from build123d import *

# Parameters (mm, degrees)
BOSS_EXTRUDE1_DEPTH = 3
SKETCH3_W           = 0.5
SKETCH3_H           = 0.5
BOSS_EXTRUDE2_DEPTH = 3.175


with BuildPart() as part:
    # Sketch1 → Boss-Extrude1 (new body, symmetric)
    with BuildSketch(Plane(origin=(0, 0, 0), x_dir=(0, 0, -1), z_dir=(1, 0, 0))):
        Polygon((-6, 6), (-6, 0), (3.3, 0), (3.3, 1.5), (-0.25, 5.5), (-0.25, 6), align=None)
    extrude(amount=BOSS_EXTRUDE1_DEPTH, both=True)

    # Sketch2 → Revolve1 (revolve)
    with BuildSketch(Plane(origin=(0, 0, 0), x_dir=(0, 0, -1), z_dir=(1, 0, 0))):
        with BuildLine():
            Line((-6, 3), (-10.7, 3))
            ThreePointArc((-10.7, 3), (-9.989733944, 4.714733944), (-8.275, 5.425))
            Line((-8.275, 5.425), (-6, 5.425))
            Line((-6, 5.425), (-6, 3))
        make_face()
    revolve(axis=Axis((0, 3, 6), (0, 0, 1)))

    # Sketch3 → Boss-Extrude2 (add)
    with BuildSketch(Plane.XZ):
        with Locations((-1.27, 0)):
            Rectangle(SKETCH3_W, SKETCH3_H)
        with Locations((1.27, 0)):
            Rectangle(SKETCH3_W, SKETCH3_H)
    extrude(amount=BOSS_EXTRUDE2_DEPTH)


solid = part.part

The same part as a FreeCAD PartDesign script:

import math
import FreeCAD as App
import Part
import Sketcher
from FreeCAD import Vector
Q = App.Units.Quantity


def add_polygon(sketch, points):
    """Adds a closed chain of lines whose ends are joined by coincident constraints."""
    first, n = sketch.GeometryCount, len(points)
    for a, b in zip(points, points[1:] + points[:1]):
        sketch.addGeometry(Part.LineSegment(App.Vector(*a, 0), App.Vector(*b, 0)), False)
    for i in range(n):
        sketch.addConstraint(Sketcher.Constraint("Coincident", first + i, 2, first + (i + 1) % n, 1))

doc = App.newDocument("Part")
body = doc.addObject("PartDesign::Body", "Body")

sketch1 = body.newObject("Sketcher::SketchObject", "Sketch")
sketch1.AttachmentSupport = (doc.getObject("YZ_Plane"), [""])
sketch1.MapMode = "FlatFace"
add_polygon(sketch1, [(6, 6), (0, 6), (0, -3.3), (1.5, -3.3), (5.5, 0.2), (6, 0.2)])
sketch1.addConstraint([
    Sketcher.Constraint("Horizontal", 0),
    Sketcher.Constraint("Vertical", 1),
    Sketcher.Constraint("Horizontal", 2),
    Sketcher.Constraint("Horizontal", 4),
    Sketcher.Constraint("Vertical", 5),
    Sketcher.Constraint("PointOnObject", 0, 2, -2),
    Sketcher.Constraint("DistanceX", 0, 2, 0, 1, Q("6 mm")),
    Sketcher.Constraint("DistanceX", 2, 1, 2, 2, Q("1.5 mm")),
    Sketcher.Constraint("DistanceX", 4, 1, 4, 2, Q("0.5 mm")),
    Sketcher.Constraint("DistanceY", 1, 2, 1, 1, Q("9.3 mm")),
    Sketcher.Constraint("DistanceY", -1, 1, 0, 2, Q("6 mm")),
    Sketcher.Constraint("DistanceY", 5, 1, 5, 2, Q("5.75 mm")),
])
pad1 = body.newObject("PartDesign::Pad", "Pad")
pad1.Profile = sketch1
pad1.Length = 6
pad1.Midplane = True

sketch2 = body.newObject("Sketcher::SketchObject", "Sketch001")
sketch2.AttachmentSupport = (doc.getObject("YZ_Plane"), [""])
sketch2.MapMode = "FlatFace"
sketch2.addGeometry([
    Part.LineSegment(Vector(3, 10.7, 0), Vector(3, 6, 0)),
    Part.LineSegment(Vector(3, 6, 0), Vector(5.4, 6, 0)),
    Part.LineSegment(Vector(5.4, 6, 0), Vector(5.4, 8.3, 0)),
    Part.ArcOfCircle(Part.Circle(Vector(3, 8.3, 0), Vector(0, 0, 1), 2.4), math.radians(0), math.radians(90)),
], False)
sketch2.addGeometry(Part.LineSegment(Vector(3, 6, 0), Vector(3, 10.7, 0)), True)
sketch2.addConstraint([
    Sketcher.Constraint("Coincident", 0, 2, 1, 1),
    Sketcher.Constraint("Coincident", 1, 2, 2, 1),
    Sketcher.Constraint("Tangent", 2, 2, 3, 1),
    Sketcher.Constraint("Coincident", 3, 2, 0, 1),
    Sketcher.Constraint("Vertical", 0),
    Sketcher.Constraint("Horizontal", 1),
    Sketcher.Constraint("Vertical", 2),
    Sketcher.Constraint("Vertical", 4),
    Sketcher.Constraint("Coincident", 4, 1, 0, 2),
    Sketcher.Constraint("Vertical", 3, 3, 0, 2),
    Sketcher.Constraint("Equal", 0, 4),
    Sketcher.Constraint("DistanceY", 0, 2, 0, 1, Q("4.7 mm")),
    Sketcher.Constraint("DistanceX", -1, 1, 3, 3, Q("3 mm")),
    Sketcher.Constraint("DistanceY", -1, 1, 0, 2, Q("6 mm")),
    Sketcher.Constraint("Radius", 3, Q("2.425 mm")),
])
revolution = body.newObject("PartDesign::Revolution", "Revolution")
revolution.Profile = sketch2
revolution.ReferenceAxis = (sketch2, ["Axis0"])
revolution.Angle = 360

sketch3 = body.newObject("Sketcher::SketchObject", "Sketch002")
sketch3.AttachmentSupport = (doc.getObject("XZ_Plane"), [""])
sketch3.MapMode = "FlatFace"
add_polygon(sketch3, [(-1.5, 0.2), (-1.5, -0.2), (-1, -0.2), (-1, 0.2)])
add_polygon(sketch3, [(1, 0.2), (1, -0.2), (1.5, -0.2), (1.5, 0.2)])
sketch3.addConstraint([
    Sketcher.Constraint("Vertical", 0),
    Sketcher.Constraint("Horizontal", 1),
    Sketcher.Constraint("Vertical", 2),
    Sketcher.Constraint("Horizontal", 3),
    Sketcher.Constraint("Vertical", 4),
    Sketcher.Constraint("Horizontal", 5),
    Sketcher.Constraint("Vertical", 6),
    Sketcher.Constraint("Horizontal", 7),
    Sketcher.Constraint("Symmetric", 2, 2, 4, 2, -1, 1),
    Sketcher.Constraint("Symmetric", 0, 2, 6, 2, -1, 1),
    Sketcher.Constraint("Horizontal", 1, 2, 4, 2),
    Sketcher.Constraint("Equal", 7, 0),
    Sketcher.Constraint("DistanceX", 1, 1, 1, 2, Q("0.5 mm")),
    Sketcher.Constraint("DistanceX", 0, 2, -1, 1, Q("1.52 mm")),
])
pad2 = body.newObject("PartDesign::Pad", "Pad001")
pad2.Profile = sketch3
pad2.Length = 3.175

doc.recompute()
